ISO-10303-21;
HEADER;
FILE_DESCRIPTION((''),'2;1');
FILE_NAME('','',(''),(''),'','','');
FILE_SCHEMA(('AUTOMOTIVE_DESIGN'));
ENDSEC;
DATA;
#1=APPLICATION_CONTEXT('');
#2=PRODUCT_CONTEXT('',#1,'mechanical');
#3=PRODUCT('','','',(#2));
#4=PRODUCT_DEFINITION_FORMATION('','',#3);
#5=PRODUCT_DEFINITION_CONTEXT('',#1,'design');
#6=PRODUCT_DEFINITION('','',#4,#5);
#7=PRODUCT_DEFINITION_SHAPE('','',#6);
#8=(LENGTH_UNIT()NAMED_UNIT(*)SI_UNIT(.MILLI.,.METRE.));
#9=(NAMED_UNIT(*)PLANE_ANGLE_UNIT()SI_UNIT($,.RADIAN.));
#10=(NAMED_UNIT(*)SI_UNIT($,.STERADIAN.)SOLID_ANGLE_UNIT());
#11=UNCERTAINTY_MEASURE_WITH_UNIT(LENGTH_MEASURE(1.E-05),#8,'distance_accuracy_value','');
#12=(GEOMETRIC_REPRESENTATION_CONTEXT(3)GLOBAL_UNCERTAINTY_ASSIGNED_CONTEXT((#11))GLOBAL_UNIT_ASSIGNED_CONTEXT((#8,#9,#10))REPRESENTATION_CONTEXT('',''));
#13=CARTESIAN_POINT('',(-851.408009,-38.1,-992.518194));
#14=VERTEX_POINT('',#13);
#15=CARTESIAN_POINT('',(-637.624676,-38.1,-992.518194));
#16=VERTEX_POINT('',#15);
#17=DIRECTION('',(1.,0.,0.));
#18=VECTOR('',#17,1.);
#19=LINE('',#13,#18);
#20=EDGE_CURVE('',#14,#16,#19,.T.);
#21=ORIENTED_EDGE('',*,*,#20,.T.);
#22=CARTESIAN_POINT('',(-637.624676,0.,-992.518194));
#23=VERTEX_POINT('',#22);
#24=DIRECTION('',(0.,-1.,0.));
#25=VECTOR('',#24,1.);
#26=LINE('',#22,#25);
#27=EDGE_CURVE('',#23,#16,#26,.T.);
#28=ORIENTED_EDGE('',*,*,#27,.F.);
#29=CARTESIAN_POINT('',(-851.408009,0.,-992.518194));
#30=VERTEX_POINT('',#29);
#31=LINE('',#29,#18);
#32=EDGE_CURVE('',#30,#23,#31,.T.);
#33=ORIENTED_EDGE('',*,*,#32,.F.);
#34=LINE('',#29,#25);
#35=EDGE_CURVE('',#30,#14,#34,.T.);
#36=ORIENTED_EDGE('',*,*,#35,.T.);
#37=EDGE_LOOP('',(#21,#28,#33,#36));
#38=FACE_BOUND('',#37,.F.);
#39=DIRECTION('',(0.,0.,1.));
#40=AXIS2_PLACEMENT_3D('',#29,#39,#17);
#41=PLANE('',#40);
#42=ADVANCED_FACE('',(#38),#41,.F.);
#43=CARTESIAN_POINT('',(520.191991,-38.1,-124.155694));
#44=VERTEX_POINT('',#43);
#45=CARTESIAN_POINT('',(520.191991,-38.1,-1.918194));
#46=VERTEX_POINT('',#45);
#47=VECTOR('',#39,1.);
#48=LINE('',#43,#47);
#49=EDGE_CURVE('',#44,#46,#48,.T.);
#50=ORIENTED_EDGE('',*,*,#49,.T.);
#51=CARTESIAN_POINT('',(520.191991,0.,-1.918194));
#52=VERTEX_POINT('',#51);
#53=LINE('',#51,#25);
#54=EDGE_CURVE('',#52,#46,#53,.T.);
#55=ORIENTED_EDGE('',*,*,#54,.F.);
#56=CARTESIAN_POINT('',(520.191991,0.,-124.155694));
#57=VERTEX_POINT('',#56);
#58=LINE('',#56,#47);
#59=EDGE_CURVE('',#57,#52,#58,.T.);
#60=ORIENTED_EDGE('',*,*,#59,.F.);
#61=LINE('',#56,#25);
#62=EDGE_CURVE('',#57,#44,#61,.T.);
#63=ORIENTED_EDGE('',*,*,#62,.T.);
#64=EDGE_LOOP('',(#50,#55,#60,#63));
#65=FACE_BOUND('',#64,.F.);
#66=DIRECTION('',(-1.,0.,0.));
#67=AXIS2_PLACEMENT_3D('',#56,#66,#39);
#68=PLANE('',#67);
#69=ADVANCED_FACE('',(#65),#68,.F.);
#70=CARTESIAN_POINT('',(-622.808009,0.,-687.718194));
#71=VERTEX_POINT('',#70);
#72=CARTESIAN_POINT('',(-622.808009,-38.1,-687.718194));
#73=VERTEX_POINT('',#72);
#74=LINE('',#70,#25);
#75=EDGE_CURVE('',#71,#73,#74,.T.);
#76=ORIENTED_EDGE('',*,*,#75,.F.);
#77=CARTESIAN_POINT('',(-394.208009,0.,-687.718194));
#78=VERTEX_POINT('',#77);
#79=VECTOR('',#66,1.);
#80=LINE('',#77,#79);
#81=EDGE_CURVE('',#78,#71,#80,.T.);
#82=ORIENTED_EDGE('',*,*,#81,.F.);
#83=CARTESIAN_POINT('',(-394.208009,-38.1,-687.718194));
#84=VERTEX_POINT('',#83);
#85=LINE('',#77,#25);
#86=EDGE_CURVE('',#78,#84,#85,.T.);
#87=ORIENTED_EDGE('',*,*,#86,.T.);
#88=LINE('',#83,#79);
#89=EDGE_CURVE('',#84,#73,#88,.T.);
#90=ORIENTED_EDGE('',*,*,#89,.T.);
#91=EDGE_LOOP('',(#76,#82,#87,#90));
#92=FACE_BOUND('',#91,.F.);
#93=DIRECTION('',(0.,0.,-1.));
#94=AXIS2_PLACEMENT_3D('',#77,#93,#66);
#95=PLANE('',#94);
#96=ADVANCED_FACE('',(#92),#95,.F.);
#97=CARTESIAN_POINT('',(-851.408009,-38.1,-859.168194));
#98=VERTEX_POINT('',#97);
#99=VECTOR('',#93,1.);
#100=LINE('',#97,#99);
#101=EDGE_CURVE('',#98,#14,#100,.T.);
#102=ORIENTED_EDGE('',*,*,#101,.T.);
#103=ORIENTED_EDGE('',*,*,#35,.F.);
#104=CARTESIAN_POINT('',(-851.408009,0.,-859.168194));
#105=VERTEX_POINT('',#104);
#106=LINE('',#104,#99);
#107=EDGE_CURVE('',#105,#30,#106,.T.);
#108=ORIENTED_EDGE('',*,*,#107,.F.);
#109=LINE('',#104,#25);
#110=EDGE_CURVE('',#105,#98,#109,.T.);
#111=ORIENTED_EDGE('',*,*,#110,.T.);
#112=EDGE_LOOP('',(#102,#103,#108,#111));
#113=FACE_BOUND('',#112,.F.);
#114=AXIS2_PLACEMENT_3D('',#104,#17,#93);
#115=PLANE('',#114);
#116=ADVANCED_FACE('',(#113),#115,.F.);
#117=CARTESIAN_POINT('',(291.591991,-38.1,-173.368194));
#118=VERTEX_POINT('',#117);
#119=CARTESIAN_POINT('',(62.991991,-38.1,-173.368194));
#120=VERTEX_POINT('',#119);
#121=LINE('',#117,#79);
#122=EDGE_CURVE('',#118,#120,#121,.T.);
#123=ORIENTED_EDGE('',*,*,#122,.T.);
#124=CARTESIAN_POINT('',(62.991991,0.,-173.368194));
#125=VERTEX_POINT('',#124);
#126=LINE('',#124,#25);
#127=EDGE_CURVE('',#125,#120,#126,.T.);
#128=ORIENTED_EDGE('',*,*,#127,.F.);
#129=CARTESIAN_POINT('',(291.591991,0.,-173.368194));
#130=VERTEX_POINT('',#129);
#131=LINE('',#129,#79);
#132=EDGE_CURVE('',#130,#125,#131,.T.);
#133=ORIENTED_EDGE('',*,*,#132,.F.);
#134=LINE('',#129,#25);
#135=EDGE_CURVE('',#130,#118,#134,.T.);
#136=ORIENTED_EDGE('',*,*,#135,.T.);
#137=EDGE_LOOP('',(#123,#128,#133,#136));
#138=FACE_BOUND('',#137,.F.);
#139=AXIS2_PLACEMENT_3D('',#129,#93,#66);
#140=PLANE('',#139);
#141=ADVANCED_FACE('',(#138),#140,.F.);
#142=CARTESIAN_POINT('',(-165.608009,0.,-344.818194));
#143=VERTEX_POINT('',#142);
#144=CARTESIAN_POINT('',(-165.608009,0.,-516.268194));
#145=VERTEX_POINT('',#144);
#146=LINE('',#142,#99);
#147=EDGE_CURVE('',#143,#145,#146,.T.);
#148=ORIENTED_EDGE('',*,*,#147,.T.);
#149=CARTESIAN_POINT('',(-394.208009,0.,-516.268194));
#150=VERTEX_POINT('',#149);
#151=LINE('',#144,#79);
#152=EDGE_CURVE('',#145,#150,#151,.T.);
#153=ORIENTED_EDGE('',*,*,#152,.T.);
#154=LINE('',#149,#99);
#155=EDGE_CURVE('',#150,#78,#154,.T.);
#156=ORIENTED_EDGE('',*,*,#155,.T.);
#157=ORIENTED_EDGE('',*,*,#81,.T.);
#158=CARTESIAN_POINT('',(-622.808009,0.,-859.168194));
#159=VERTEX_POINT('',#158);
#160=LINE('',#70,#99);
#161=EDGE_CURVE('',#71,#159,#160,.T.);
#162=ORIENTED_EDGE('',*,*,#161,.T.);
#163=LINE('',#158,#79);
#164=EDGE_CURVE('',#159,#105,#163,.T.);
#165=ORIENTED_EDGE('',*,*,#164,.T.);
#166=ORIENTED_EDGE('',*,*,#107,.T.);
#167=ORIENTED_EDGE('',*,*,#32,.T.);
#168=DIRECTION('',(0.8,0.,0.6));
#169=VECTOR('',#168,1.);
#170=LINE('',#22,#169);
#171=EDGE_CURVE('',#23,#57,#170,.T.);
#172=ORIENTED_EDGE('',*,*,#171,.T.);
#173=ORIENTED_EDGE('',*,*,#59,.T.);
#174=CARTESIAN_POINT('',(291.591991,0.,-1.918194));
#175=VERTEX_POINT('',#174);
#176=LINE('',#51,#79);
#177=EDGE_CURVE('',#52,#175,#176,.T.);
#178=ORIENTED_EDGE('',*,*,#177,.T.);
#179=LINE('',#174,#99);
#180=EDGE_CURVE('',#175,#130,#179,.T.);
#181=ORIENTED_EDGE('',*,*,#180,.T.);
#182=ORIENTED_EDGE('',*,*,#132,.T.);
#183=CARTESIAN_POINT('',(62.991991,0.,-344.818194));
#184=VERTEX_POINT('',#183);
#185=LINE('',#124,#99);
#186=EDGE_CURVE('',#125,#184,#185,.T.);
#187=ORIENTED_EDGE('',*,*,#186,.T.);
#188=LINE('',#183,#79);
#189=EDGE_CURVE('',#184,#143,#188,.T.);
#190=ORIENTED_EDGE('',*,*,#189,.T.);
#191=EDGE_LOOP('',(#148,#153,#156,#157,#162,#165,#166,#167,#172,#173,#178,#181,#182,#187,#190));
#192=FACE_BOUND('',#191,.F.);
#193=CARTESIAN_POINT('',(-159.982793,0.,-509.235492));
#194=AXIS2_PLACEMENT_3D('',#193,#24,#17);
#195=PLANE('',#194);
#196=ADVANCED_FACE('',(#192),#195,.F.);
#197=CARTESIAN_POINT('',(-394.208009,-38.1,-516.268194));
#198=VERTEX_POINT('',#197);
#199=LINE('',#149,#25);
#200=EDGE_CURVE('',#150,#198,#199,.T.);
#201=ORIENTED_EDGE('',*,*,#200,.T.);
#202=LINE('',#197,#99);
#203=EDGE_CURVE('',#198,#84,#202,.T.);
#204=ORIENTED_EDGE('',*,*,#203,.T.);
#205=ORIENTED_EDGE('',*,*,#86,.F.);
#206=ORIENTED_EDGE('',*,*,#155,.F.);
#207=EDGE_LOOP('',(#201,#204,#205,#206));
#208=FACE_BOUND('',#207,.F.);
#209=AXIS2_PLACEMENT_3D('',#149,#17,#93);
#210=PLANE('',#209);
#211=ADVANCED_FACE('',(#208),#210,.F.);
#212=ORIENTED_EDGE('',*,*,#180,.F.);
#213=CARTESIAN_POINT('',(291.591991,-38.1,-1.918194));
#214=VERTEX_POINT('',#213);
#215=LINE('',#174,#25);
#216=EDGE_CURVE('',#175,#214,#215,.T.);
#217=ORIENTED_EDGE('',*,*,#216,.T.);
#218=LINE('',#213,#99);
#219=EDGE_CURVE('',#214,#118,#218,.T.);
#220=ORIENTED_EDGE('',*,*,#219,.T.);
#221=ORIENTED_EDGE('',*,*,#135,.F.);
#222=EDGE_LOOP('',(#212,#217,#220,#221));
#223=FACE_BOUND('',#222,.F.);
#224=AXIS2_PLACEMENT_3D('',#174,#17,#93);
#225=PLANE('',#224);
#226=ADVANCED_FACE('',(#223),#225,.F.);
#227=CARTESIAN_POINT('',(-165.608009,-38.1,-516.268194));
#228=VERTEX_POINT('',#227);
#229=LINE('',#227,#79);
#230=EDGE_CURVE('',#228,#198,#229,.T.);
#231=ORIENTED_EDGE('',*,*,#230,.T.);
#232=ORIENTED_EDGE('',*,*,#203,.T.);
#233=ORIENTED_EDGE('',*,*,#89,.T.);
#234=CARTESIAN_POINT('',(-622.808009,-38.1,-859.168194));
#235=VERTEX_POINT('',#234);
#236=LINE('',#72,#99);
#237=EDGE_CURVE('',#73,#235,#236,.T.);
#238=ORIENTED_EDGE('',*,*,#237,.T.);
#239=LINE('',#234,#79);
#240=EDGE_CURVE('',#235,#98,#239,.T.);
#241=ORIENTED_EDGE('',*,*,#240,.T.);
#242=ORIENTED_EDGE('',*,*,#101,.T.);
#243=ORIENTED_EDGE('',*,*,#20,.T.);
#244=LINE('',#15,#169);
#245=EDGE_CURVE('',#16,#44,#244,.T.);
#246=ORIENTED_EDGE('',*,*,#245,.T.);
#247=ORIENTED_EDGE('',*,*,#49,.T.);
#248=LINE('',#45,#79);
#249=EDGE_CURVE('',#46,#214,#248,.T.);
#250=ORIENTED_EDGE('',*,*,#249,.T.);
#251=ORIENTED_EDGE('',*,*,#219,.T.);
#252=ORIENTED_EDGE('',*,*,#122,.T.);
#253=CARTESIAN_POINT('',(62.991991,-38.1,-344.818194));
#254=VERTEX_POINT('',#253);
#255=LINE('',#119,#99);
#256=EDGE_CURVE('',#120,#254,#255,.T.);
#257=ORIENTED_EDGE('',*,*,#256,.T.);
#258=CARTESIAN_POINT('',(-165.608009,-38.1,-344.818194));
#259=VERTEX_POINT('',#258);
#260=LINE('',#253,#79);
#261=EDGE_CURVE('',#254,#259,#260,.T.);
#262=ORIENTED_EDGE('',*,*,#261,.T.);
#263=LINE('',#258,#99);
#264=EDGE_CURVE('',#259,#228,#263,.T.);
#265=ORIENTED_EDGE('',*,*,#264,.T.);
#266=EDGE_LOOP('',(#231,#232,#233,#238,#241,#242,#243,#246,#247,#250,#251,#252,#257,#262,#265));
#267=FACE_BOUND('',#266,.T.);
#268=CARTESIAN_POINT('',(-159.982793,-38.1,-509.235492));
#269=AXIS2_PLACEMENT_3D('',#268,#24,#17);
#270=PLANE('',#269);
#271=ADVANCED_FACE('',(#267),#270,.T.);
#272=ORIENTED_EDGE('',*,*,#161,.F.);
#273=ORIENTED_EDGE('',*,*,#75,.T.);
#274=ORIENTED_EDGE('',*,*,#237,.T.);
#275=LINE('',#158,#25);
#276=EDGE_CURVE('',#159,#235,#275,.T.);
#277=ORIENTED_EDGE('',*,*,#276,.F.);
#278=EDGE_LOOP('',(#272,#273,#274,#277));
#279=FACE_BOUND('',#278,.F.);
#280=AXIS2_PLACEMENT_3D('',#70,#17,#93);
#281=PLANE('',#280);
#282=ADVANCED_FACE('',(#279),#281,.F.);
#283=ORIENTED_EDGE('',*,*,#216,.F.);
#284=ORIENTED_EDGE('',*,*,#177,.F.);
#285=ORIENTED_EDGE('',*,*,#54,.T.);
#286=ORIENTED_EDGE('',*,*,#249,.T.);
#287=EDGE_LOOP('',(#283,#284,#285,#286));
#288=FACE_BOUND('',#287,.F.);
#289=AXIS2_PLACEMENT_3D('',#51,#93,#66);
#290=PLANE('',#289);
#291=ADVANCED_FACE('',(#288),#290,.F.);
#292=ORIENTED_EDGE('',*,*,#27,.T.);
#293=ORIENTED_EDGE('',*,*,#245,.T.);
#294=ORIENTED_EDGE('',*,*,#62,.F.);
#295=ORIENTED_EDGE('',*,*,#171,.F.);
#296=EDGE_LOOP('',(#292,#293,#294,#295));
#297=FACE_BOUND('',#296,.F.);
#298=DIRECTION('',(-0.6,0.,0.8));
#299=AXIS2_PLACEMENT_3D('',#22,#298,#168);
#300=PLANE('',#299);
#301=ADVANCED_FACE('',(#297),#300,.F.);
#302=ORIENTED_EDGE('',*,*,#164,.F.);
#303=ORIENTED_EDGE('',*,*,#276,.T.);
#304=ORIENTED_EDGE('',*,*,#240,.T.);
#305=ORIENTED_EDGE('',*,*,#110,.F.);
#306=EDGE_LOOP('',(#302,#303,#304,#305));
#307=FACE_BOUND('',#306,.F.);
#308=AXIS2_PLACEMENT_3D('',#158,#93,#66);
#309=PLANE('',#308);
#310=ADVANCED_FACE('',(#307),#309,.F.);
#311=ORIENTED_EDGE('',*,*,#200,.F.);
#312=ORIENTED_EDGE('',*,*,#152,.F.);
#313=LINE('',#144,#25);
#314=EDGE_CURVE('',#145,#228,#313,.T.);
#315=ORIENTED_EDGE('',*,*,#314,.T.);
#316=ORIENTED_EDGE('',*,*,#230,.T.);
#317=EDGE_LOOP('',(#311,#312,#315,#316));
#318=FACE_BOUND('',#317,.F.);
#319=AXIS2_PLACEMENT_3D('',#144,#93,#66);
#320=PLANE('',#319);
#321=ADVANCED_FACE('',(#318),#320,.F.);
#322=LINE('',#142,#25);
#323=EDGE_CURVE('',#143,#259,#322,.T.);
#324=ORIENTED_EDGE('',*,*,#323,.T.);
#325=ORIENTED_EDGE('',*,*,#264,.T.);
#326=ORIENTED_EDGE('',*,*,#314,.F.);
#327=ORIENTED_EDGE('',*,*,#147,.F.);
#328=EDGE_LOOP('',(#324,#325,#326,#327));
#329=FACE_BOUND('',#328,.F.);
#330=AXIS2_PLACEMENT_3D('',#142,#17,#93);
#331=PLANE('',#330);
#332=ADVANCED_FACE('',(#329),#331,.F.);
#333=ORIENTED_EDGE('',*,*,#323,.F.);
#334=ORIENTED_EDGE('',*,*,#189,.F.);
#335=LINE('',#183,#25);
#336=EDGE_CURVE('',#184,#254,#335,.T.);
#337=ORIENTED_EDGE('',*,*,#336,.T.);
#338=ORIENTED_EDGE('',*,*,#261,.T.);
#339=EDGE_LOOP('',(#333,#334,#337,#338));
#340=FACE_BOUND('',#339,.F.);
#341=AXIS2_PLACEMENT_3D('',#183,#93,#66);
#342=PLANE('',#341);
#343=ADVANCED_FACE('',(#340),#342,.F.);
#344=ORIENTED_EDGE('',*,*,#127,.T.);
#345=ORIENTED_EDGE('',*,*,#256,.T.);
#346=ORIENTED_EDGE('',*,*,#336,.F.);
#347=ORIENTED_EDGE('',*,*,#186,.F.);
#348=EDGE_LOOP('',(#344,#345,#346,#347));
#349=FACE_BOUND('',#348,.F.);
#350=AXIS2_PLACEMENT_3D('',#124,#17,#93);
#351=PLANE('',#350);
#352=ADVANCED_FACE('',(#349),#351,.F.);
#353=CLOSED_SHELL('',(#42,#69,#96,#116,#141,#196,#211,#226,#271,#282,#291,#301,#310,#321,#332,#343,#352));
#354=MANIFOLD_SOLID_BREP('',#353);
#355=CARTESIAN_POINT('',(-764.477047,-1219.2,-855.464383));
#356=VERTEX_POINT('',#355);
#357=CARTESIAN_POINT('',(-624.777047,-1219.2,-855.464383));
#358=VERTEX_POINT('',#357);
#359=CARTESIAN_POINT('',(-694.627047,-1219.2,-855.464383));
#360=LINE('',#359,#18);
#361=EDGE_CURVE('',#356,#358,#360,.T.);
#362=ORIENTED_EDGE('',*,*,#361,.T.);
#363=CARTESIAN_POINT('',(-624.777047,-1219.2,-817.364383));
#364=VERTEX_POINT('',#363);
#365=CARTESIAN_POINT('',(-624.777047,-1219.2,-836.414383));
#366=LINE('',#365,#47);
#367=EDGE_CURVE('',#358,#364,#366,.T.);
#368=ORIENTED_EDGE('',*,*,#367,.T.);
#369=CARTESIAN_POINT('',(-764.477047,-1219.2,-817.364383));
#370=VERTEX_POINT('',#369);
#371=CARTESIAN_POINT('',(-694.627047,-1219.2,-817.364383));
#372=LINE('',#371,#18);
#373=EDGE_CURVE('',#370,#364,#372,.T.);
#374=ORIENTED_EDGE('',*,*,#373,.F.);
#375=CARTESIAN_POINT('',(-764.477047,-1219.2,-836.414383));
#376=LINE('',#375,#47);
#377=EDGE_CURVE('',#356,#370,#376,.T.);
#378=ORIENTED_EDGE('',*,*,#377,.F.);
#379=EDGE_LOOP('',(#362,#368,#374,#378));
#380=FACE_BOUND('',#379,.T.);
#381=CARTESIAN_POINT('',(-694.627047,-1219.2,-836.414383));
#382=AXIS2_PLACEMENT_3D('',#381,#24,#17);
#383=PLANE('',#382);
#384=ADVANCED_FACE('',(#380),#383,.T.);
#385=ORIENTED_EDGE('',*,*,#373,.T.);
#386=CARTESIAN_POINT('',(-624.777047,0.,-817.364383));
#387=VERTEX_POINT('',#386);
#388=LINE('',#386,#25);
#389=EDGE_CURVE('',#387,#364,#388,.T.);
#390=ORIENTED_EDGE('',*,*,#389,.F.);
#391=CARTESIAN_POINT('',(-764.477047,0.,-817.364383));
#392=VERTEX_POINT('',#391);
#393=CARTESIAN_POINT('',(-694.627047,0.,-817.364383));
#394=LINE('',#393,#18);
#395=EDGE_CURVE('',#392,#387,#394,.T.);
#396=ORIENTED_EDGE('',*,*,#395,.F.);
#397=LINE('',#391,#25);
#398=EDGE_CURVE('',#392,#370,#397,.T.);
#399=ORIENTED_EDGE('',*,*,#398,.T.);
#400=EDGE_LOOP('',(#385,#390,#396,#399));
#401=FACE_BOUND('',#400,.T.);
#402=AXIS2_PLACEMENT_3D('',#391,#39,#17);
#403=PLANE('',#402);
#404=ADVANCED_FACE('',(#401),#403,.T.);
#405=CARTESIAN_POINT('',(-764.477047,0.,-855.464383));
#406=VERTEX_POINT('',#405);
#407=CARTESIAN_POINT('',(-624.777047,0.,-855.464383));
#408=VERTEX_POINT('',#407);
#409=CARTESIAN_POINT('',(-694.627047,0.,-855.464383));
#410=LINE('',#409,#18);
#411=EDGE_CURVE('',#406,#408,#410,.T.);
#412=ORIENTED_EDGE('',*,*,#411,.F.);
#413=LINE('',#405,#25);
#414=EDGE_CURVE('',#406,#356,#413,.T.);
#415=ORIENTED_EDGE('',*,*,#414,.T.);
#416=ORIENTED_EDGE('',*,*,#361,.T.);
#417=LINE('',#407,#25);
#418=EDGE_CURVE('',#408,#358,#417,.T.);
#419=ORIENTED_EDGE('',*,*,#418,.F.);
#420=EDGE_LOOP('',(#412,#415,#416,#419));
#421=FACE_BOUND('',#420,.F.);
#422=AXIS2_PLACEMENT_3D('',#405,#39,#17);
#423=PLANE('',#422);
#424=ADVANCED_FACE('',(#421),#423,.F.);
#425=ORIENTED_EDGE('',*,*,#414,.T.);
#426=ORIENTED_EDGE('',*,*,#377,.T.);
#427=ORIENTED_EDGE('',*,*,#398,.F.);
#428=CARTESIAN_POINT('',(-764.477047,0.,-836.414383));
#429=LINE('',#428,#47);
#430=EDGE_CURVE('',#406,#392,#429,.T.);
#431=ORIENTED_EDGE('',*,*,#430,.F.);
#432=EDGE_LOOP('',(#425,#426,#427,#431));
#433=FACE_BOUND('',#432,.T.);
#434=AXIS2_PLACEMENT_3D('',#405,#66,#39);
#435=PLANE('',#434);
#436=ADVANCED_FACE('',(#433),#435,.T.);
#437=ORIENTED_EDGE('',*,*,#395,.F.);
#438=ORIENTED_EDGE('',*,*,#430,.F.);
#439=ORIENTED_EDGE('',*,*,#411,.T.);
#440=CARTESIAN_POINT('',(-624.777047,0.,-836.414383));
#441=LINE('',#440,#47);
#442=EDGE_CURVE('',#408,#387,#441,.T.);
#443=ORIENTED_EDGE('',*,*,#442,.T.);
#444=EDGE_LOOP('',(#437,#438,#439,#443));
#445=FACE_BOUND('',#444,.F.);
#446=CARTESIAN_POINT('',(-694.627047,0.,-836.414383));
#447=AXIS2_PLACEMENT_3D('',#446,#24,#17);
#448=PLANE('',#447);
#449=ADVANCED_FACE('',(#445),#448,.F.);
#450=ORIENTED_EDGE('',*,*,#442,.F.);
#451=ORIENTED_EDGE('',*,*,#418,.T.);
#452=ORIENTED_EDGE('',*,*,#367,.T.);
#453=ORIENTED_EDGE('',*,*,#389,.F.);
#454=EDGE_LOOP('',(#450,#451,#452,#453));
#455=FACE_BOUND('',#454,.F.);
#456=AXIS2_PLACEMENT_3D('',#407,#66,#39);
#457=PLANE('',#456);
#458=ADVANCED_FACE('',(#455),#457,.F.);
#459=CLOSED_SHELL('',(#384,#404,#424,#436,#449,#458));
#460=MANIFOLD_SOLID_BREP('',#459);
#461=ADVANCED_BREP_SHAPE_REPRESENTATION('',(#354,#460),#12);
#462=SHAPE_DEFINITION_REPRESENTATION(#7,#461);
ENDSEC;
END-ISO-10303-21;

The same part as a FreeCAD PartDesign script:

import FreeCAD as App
import Part
import Sketcher
Q = App.Units.Quantity


def add_polygon(sketch, points):
    """Adds a closed chain of lines whose ends are joined by coincident constraints."""
    first, n = sketch.GeometryCount, len(points)
    for a, b in zip(points, points[1:] + points[:1]):
        sketch.addGeometry(Part.LineSegment(App.Vector(*a, 0), App.Vector(*b, 0)), False)
    for i in range(n):
        sketch.addConstraint(Sketcher.Constraint("Coincident", first + i, 2, first + (i + 1) % n, 1))

doc = App.newDocument("Part")
params = doc.addObject("Spreadsheet::Sheet", "Params")
for row, (alias, value) in enumerate([
    ("sketch1_width", "9 in"),
    ("sketch1_height", "6.75 in"),
    ("sketch1_height2", "4.8125 in"),
    ("pad1_length", "1.5 in"),
    ("sketch2_width", "5.5 in"),
    ("sketch2_height", "1.5 in"),
    ("pad2_length", "48 in"),
], start=1):
    params.set(f"A{row}", alias)
    params.set(f"B{row}", "=" + value)
    params.setAlias(f"B{row}", alias)

body = doc.addObject("PartDesign::Body", "Body")

# Sketch on XZ plane
sketch1 = doc.addObject("Sketcher::SketchObject", "Sketch")
body.addObject(sketch1)
sketch1.AttachmentSupport = (doc.XZ_Plane, [""])
sketch1.MapMode = "FlatFace"
add_polygon(sketch1, [(520, -124), (520, -2), (292, -2), (292, -173), (63, -173), (63, -345), (-166, -345), (-166, -516), (-394, -516), (-394, -688), (-623, -688), (-623, -859), (-851, -859), (-851, -993), (-638, -993)])  # lines 0-14
sketch1.addConstraint(Sketcher.Constraint("Vertical", 0))
sketch1.addConstraint(Sketcher.Constraint("Horizontal", 1))
sketch1.addConstraint(Sketcher.Constraint("Vertical", 2))
sketch1.addConstraint(Sketcher.Constraint("Horizontal", 3))
sketch1.addConstraint(Sketcher.Constraint("Vertical", 4))
sketch1.addConstraint(Sketcher.Constraint("Horizontal", 5))
sketch1.addConstraint(Sketcher.Constraint("Vertical", 6))
sketch1.addConstraint(Sketcher.Constraint("Horizontal", 7))
sketch1.addConstraint(Sketcher.Constraint("Vertical", 8))
sketch1.addConstraint(Sketcher.Constraint("Horizontal", 9))
sketch1.addConstraint(Sketcher.Constraint("Vertical", 10))
sketch1.addConstraint(Sketcher.Constraint("Horizontal", 11))
sketch1.addConstraint(Sketcher.Constraint("Vertical", 12))
sketch1.addConstraint(Sketcher.Constraint("Horizontal", 13))
sketch1.addConstraint(Sketcher.Constraint("Equal", 1, 3))
sketch1.addConstraint(Sketcher.Constraint("Equal", 3, 5))
sketch1.addConstraint(Sketcher.Constraint("Equal", 5, 7))
sketch1.addConstraint(Sketcher.Constraint("Equal", 7, 9))
sketch1.addConstraint(Sketcher.Constraint("Equal", 9, 11))
sketch1.addConstraint(Sketcher.Constraint("Equal", 2, 4))
sketch1.addConstraint(Sketcher.Constraint("Equal", 4, 6))
sketch1.addConstraint(Sketcher.Constraint("Equal", 6, 8))
sketch1.addConstraint(Sketcher.Constraint("Equal", 8, 10))
sketch1.addConstraint(Sketcher.Constraint("DistanceX", 1, 2, 1, 1, Q("9 in")))
sketch1.addConstraint(Sketcher.Constraint("DistanceY", 12, 2, 9, 2, Q("12 in")))
sketch1.addConstraint(Sketcher.Constraint("DistanceY", 2, 2, 2, 1, Q("6.75 in")))
sketch1.addConstraint(Sketcher.Constraint("DistanceY", 0, 1, 0, 2, Q("4.8125 in")))
sketch1.addConstraint(Sketcher.Constraint("DistanceX", 13, 1, 13, 2, 213.783333))
sketch1.addConstraint(Sketcher.Constraint("DistanceX", -1, 1, 0, 2, 520.191991))
sketch1.addConstraint(Sketcher.Constraint("DistanceY", 0, 2, -1, 1, 1.918194))
sketch1.setExpression("Constraints[38]", "Params.sketch1_width")
sketch1.setExpression("Constraints[40]", "Params.sketch1_height")
sketch1.setExpression("Constraints[41]", "Params.sketch1_height2")
pad1 = doc.addObject("PartDesign::Pad", "Pad")
body.addObject(pad1)
pad1.Profile = sketch1
pad1.setExpression("Length", "Params.pad1_length")
body2 = doc.addObject("PartDesign::Body", "Body001")

# Sketch on XZ plane
sketch2 = doc.addObject("Sketcher::SketchObject", "Sketch001")
body2.addObject(sketch2)
sketch2.AttachmentSupport = (doc.getObject("XZ_Plane001"), [""])
sketch2.MapMode = "FlatFace"
add_polygon(sketch2, [(-764, -817), (-764, -855), (-625, -855), (-625, -817)])  # lines 0-3
sketch2.addConstraint(Sketcher.Constraint("Vertical", 0))
sketch2.addConstraint(Sketcher.Constraint("Horizontal", 1))
sketch2.addConstraint(Sketcher.Constraint("Vertical", 2))
sketch2.addConstraint(Sketcher.Constraint("Horizontal", 3))
sketch2.addConstraint(Sketcher.Constraint("DistanceX", 1, 1, 1, 2, Q("5.5 in")))
sketch2.addConstraint(Sketcher.Constraint("DistanceY", 0, 2, 0, 1, Q("1.5 in")))
sketch2.addConstraint(Sketcher.Constraint("DistanceY", 0, 2, -1, 1, Q("33.6797001 in")))
sketch2.addConstraint(Sketcher.Constraint("DistanceX", 0, 2, -1, 1, 764.477047))
sketch2.setExpression("Constraints[8]", "Params.sketch2_width")
sketch2.setExpression("Constraints[9]", "Params.sketch2_height")
pad2 = doc.addObject("PartDesign::Pad", "Pad001")
body2.addObject(pad2)
pad2.Profile = sketch2
pad2.setExpression("Length", "Params.pad2_length")

doc.recompute()
